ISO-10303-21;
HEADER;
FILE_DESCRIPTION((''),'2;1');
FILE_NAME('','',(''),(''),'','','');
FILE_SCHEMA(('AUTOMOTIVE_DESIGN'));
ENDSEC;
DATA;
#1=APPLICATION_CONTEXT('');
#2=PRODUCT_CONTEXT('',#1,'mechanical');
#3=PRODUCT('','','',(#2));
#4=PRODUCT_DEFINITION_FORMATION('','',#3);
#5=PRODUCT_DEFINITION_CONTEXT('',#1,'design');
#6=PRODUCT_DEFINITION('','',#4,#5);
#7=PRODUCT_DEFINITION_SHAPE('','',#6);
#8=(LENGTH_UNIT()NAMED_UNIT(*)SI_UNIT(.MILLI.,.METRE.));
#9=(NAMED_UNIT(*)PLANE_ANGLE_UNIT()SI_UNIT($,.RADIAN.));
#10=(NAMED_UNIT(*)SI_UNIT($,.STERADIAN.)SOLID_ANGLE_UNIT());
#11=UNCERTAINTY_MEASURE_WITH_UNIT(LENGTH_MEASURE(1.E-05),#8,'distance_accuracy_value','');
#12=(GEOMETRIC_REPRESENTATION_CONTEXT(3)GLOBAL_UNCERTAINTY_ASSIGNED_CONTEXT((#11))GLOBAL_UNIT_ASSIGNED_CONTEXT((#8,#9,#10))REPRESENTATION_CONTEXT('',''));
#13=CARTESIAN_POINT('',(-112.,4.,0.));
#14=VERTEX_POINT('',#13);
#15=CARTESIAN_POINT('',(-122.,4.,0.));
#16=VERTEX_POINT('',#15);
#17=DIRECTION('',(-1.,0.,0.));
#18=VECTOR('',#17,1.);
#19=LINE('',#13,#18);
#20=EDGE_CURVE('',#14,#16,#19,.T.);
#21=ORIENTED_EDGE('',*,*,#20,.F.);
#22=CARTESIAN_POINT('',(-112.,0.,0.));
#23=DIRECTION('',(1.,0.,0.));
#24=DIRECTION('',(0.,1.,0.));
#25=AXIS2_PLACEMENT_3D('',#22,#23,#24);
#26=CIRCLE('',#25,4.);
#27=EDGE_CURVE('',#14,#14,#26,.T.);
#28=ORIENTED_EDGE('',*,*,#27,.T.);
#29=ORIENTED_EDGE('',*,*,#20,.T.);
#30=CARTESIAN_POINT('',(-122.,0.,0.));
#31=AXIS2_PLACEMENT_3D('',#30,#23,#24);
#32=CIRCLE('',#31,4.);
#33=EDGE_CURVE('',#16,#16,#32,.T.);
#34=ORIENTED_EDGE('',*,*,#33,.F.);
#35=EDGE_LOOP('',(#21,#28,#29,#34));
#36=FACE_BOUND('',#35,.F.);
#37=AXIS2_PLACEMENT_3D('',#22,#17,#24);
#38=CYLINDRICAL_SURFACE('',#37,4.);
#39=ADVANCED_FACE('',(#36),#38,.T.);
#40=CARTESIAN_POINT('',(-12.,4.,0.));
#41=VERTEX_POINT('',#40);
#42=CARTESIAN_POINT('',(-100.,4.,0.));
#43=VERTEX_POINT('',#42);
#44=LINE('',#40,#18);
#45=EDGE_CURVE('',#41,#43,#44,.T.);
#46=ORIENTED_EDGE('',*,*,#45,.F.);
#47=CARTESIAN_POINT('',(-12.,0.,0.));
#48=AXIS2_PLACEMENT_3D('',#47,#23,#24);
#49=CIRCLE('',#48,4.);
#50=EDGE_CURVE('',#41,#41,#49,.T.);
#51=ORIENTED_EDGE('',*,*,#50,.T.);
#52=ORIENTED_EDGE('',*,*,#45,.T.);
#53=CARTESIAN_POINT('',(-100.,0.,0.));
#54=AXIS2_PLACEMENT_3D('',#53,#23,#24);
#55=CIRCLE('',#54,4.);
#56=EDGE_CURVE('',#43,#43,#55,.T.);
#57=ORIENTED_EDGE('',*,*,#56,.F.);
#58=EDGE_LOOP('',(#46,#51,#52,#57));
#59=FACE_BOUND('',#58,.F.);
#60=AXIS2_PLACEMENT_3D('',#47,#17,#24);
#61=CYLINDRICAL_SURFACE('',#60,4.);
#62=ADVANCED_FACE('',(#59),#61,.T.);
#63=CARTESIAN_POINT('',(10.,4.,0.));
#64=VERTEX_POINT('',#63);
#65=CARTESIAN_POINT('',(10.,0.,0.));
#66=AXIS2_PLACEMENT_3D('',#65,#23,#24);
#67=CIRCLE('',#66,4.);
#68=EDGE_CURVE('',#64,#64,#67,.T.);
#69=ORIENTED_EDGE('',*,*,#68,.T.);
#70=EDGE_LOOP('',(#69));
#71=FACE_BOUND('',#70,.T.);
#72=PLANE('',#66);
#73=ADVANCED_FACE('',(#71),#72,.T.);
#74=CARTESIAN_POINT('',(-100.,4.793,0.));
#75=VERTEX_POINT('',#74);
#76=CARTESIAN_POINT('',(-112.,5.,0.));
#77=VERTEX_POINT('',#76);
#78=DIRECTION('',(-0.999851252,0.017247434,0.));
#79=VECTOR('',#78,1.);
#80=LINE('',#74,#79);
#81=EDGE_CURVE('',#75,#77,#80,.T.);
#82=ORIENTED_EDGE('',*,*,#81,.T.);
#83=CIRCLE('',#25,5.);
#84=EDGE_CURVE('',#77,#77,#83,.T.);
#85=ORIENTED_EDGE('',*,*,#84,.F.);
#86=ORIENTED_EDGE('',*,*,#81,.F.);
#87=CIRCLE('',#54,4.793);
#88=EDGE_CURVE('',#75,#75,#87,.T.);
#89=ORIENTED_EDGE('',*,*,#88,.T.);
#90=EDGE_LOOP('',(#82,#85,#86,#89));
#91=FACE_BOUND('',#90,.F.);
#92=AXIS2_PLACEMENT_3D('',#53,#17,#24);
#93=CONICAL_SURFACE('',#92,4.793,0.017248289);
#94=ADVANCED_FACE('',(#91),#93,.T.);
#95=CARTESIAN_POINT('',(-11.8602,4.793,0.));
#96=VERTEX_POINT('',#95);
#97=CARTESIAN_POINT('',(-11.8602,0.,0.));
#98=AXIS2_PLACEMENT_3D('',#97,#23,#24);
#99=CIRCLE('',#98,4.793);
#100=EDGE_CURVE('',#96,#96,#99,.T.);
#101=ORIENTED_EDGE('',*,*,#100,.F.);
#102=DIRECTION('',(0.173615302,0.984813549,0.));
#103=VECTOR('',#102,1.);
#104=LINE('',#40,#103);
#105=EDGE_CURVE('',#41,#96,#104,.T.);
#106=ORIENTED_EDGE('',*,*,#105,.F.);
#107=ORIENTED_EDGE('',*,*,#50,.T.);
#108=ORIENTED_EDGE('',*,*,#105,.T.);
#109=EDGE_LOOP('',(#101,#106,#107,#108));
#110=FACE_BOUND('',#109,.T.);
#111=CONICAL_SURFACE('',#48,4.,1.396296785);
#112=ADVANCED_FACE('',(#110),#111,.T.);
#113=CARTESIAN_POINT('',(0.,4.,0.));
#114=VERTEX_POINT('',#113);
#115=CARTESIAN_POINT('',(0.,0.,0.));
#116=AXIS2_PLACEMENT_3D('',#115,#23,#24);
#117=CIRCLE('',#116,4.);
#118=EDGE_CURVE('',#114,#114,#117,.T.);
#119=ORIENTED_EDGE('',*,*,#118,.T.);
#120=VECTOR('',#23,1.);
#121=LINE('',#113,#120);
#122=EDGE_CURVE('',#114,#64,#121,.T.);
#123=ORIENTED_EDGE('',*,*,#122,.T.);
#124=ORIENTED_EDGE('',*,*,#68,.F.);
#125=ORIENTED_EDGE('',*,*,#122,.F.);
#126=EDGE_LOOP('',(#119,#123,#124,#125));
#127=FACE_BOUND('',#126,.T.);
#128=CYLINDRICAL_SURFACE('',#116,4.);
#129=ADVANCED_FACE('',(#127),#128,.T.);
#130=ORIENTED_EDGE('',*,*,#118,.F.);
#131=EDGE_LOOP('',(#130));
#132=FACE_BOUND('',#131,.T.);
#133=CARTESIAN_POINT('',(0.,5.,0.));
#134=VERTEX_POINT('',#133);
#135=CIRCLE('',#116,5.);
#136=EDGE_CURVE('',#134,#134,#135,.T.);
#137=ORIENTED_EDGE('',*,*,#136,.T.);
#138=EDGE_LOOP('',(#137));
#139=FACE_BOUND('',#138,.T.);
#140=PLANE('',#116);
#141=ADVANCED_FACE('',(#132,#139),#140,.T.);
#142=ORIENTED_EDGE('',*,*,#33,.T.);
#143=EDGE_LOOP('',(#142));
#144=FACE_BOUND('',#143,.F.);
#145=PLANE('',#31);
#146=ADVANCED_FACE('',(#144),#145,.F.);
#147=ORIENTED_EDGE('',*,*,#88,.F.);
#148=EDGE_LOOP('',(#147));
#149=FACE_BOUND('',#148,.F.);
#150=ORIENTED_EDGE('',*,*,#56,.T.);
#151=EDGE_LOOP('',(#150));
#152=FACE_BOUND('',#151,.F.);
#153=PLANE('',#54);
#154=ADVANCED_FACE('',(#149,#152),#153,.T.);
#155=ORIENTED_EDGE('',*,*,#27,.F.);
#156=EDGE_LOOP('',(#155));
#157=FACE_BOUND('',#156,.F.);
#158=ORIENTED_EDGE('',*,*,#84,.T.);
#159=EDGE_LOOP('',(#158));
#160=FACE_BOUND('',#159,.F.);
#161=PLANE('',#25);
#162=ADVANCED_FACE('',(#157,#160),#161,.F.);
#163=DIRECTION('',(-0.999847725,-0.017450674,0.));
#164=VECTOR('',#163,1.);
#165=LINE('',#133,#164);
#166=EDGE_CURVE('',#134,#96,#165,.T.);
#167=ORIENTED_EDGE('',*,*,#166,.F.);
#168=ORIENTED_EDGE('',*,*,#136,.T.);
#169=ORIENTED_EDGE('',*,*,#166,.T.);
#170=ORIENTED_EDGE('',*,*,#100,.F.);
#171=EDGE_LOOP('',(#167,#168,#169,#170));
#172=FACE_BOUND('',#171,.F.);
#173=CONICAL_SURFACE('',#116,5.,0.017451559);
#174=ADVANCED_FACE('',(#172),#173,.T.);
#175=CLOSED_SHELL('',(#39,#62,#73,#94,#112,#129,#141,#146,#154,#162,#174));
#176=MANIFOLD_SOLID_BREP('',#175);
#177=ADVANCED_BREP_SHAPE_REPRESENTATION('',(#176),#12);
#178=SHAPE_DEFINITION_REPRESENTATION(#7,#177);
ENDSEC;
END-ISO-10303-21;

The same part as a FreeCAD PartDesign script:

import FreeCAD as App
import Part
import Sketcher
Q = App.Units.Quantity

doc = App.newDocument("Part")
body = doc.addObject("PartDesign::Body", "Body")

sketch1 = body.newObject("Sketcher::SketchObject", "Sketch")
sketch1.AttachmentSupport = (doc.getObject("XY_Plane"), [""])
sketch1.MapMode = "FlatFace"
sketch1.addGeometry([
    Part.LineSegment(App.Vector(0, 4, 0), App.Vector(0, 5, 0)),
    Part.LineSegment(App.Vector(0, 5, 0), App.Vector(-11.9, 4.8, 0)),
    Part.LineSegment(App.Vector(-11.9, 4.8, 0), App.Vector(-12, 4, 0)),
    Part.LineSegment(App.Vector(-12, 4, 0), App.Vector(-100, 4, 0)),
    Part.LineSegment(App.Vector(-100, 4, 0), App.Vector(-100, 4.8, 0)),
    Part.LineSegment(App.Vector(-100, 4.8, 0), App.Vector(-112, 5, 0)),
    Part.LineSegment(App.Vector(-112, 5, 0), App.Vector(-112, 4, 0)),
    Part.LineSegment(App.Vector(-112, 4, 0), App.Vector(-122, 4, 0)),
    Part.LineSegment(App.Vector(-122, 4, 0), App.Vector(-122, 0, 0)),
    Part.LineSegment(App.Vector(-122, 0, 0), App.Vector(10, 0, 0)),
    Part.LineSegment(App.Vector(10, 0, 0), App.Vector(10, 4, 0)),
    Part.LineSegment(App.Vector(10, 4, 0), App.Vector(0, 4, 0)),
], False)
sketch1.addConstraint([
    Sketcher.Constraint("Coincident", 0, 2, 1, 1),
    Sketcher.Constraint("Coincident", 1, 2, 2, 1),
    Sketcher.Constraint("Coincident", 2, 2, 3, 1),
    Sketcher.Constraint("Coincident", 3, 2, 4, 1),
    Sketcher.Constraint("Coincident", 4, 2, 5, 1),
    Sketcher.Constraint("Coincident", 5, 2, 6, 1),
    Sketcher.Constraint("Coincident", 6, 2, 7, 1),
    Sketcher.Constraint("Coincident", 7, 2, 8, 1),
    Sketcher.Constraint("Coincident", 8, 2, 9, 1),
    Sketcher.Constraint("Coincident", 9, 2, 10, 1),
    Sketcher.Constraint("Coincident", 10, 2, 11, 1),
    Sketcher.Constraint("Coincident", 11, 2, 0, 1),
    Sketcher.Constraint("Vertical", 0),
    Sketcher.Constraint("Horizontal", 3),
    Sketcher.Constraint("Vertical", 4),
    Sketcher.Constraint("Vertical", 6),
    Sketcher.Constraint("Horizontal", 7),
    Sketcher.Constraint("Vertical", 8),
    Sketcher.Constraint("Horizontal", 9),
    Sketcher.Constraint("Vertical", 10),
    Sketcher.Constraint("Horizontal", 11),
    Sketcher.Constraint("PointOnObject", 0, 2, -2),
    Sketcher.Constraint("PointOnObject", 8, 2, -1),
    Sketcher.Constraint("Horizontal", 1, 2, 4, 2),
    Sketcher.Constraint("Horizontal", 0, 2, 5, 2),
    Sketcher.Constraint("Horizontal", 3, 2, 6, 2),
    Sketcher.Constraint("Horizontal", 7, 2, 10, 2),
    Sketcher.Constraint("Equal", 7, 11),
    Sketcher.Constraint("DistanceX", 7, 2, 7, 1, Q("10 mm")),
    Sketcher.Constraint("DistanceY", 0, 1, 0, 2, Q("1 mm")),
    Sketcher.Constraint("DistanceX", 2, 2, -1, 1, Q("12 mm")),
    Sketcher.Constraint("DistanceX", 3, 2, -1, 1, Q("100 mm")),
    Sketcher.Constraint("DistanceX", 5, 2, 4, 2, Q("12 mm")),
    Sketcher.Constraint("DistanceY", 8, 2, 8, 1, Q("4 mm")),
    Sketcher.Constraint("Angle", 1, Q("-179 deg")),
    Sketcher.Constraint("DistanceY", 4, 1, 4, 2, Q("0.793 mm")),
])
revolution = body.newObject("PartDesign::Revolution", "Revolution")
revolution.Profile = sketch1
revolution.ReferenceAxis = (sketch1, ["H_Axis"])
revolution.Angle = 360

doc.recompute()
